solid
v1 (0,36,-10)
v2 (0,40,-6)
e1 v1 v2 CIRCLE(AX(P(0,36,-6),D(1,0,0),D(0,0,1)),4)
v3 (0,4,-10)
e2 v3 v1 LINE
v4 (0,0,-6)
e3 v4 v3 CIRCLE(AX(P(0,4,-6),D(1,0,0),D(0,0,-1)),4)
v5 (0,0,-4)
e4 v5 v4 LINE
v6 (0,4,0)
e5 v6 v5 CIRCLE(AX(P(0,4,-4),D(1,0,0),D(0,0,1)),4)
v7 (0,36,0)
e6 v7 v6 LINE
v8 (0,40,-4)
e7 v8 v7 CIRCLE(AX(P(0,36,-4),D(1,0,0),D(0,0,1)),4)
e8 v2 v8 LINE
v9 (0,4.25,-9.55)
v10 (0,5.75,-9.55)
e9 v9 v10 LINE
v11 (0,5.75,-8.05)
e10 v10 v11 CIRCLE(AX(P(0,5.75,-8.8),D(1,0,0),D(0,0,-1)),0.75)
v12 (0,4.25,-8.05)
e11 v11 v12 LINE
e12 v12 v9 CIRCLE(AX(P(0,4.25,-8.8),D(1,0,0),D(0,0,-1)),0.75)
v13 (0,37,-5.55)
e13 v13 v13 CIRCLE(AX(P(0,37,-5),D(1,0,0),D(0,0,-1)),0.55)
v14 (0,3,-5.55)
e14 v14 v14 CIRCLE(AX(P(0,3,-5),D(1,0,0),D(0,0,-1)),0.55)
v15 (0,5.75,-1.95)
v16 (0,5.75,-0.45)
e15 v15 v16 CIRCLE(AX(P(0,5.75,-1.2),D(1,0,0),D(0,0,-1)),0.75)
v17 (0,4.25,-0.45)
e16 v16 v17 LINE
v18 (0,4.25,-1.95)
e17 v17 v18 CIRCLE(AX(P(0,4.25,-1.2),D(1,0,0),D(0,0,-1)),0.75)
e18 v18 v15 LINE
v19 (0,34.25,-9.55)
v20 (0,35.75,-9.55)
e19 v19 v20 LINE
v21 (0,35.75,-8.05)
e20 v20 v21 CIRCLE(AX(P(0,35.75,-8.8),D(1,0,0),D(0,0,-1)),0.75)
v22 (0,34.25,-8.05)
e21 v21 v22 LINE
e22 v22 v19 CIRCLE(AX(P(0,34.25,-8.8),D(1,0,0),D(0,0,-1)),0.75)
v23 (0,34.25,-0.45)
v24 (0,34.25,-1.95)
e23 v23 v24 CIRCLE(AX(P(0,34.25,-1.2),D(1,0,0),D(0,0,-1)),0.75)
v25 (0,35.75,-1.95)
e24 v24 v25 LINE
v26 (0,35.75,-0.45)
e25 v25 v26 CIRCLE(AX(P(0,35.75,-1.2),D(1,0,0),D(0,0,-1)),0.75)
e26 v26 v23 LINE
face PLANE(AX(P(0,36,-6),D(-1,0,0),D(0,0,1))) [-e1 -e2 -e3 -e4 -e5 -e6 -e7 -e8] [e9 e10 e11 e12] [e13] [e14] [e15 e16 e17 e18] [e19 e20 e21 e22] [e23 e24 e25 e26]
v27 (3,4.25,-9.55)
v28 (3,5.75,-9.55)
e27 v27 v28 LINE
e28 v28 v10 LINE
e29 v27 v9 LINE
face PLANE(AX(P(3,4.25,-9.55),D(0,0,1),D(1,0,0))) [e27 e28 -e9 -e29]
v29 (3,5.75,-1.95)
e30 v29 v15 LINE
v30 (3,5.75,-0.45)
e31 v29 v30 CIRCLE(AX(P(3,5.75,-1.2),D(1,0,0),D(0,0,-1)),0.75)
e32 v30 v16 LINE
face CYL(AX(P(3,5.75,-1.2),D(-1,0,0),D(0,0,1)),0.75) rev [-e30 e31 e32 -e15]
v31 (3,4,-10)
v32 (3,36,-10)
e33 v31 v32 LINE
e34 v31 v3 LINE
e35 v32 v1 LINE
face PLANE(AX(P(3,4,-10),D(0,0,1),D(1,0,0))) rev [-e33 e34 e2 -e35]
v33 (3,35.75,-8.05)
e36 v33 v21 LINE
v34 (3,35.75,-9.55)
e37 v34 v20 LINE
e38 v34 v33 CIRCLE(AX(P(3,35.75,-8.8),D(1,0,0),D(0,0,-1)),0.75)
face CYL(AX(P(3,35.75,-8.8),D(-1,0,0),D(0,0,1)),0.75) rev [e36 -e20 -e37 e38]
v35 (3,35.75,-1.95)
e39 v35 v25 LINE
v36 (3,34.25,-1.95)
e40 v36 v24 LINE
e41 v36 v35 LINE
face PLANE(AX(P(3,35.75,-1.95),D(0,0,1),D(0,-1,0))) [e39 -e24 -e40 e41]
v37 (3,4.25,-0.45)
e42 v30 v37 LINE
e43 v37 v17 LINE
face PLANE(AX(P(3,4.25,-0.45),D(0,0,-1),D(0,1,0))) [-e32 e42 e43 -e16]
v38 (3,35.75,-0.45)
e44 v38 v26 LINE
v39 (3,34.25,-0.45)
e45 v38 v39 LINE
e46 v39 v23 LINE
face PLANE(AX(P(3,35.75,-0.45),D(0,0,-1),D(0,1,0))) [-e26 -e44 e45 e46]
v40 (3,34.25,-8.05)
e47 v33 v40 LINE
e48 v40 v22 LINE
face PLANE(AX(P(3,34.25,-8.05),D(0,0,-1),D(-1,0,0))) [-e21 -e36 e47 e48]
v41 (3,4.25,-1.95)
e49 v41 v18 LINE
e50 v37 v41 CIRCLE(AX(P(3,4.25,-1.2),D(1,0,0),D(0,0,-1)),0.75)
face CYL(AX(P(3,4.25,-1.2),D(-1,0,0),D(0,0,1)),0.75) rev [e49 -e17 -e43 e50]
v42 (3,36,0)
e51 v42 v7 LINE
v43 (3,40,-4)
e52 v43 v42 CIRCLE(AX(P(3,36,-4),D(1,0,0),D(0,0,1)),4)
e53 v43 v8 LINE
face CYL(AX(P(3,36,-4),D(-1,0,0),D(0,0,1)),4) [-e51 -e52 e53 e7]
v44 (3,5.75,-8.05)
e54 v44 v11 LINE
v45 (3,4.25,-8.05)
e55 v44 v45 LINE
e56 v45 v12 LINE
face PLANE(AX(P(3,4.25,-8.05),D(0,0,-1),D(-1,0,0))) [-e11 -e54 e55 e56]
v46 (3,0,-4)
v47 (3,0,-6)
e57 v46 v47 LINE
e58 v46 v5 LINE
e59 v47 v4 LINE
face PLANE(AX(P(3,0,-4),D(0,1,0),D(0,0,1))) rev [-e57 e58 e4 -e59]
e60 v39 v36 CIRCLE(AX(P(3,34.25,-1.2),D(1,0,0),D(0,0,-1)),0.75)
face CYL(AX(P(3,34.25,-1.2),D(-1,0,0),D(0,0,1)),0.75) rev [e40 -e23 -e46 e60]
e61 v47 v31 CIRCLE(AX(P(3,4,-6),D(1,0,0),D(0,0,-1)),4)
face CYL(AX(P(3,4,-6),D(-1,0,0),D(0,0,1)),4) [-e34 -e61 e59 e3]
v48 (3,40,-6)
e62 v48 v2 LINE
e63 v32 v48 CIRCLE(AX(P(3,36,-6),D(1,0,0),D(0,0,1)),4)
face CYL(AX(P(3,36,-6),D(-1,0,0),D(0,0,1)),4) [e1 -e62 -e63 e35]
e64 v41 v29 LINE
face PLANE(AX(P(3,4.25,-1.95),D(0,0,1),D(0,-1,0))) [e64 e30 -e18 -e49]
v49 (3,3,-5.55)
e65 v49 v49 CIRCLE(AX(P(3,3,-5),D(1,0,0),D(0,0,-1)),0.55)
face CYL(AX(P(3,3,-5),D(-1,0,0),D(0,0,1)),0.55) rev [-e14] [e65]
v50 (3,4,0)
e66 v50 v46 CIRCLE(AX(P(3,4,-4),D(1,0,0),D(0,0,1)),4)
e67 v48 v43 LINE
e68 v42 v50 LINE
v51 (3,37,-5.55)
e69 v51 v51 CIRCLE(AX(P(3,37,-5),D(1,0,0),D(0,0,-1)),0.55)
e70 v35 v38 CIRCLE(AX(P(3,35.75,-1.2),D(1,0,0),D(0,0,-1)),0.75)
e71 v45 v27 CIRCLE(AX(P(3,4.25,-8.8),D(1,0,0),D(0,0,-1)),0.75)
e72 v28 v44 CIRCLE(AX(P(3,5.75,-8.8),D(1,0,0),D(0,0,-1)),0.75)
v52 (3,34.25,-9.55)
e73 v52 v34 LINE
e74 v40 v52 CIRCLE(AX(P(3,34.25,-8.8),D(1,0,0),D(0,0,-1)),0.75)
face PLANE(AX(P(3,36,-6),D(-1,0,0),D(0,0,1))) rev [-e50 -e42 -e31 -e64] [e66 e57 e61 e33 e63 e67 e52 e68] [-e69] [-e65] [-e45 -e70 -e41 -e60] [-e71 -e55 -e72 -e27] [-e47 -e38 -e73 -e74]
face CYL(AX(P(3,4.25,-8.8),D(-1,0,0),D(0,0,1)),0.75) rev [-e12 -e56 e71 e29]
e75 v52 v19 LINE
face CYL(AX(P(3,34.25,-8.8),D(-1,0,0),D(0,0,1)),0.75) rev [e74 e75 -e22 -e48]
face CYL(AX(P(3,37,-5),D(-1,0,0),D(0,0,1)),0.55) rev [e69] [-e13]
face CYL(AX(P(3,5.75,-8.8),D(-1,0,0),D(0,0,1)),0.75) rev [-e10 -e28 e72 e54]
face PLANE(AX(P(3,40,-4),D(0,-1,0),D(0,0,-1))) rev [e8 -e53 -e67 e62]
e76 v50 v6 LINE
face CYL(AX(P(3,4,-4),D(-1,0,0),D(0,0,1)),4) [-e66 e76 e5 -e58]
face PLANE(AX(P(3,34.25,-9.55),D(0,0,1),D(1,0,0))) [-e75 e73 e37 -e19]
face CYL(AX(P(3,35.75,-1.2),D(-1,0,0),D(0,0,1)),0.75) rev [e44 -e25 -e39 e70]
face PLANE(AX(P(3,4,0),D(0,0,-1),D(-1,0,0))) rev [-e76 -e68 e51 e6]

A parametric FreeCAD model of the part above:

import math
import FreeCAD as App
import Part
import Sketcher
Q = App.Units.Quantity

doc = App.newDocument("Part")
body = doc.addObject("PartDesign::Body", "Body")

# Sketch on YZ plane
sketch1 = doc.addObject("Sketcher::SketchObject", "Sketch")
body.addObject(sketch1)
sketch1.AttachmentSupport = (doc.YZ_Plane, [""])
sketch1.MapMode = "FlatFace"
sketch1.addGeometry([
    Part.LineSegment(App.Vector(0, -4, 0), App.Vector(0, -6, 0)),  # 0
    Part.ArcOfCircle(Part.Circle(App.Vector(4, -6, 0), App.Vector(0, 0, 1), 4), math.radians(180), math.radians(270)),  # 1
    Part.LineSegment(App.Vector(4, -10, 0), App.Vector(36, -10, 0)),  # 2
    Part.ArcOfCircle(Part.Circle(App.Vector(36, -6, 0), App.Vector(0, 0, 1), 4), math.radians(-90), math.radians(0)),  # 3
    Part.LineSegment(App.Vector(40, -6, 0), App.Vector(40, -4, 0)),  # 4
    Part.ArcOfCircle(Part.Circle(App.Vector(36, -4, 0), App.Vector(0, 0, 1), 4), math.radians(0), math.radians(90)),  # 5
    Part.LineSegment(App.Vector(36, 0, 0), App.Vector(4, 0, 0)),  # 6
    Part.ArcOfCircle(Part.Circle(App.Vector(4, -4, 0), App.Vector(0, 0, 1), 4), math.radians(90), math.radians(180)),  # 7
    Part.ArcOfCircle(Part.Circle(App.Vector(4.2, -1.2, 0), App.Vector(0, 0, 1), 0.8), math.radians(90), math.radians(270)),  # 8
    Part.LineSegment(App.Vector(4.2, -0.5, 0), App.Vector(5.8, -0.5, 0)),  # 9
    Part.ArcOfCircle(Part.Circle(App.Vector(5.8, -1.2, 0), App.Vector(0, 0, 1), 0.8), math.radians(-90), math.radians(90)),  # 10
    Part.LineSegment(App.Vector(5.8, -1.9, 0), App.Vector(4.2, -1.9, 0)),  # 11
    Part.Circle(App.Vector(3, -5, 0), App.Vector(0, 0, 1), 0.6),  # 12
    Part.ArcOfCircle(Part.Circle(App.Vector(4.2, -8.8, 0), App.Vector(0, 0, 1), 0.8), math.radians(90), math.radians(270)),  # 13
    Part.LineSegment(App.Vector(4.2, -8.1, 0), App.Vector(5.8, -8.1, 0)),  # 14
    Part.ArcOfCircle(Part.Circle(App.Vector(5.8, -8.8, 0), App.Vector(0, 0, 1), 0.8), math.radians(-90), math.radians(90)),  # 15
    Part.LineSegment(App.Vector(5.8, -9.6, 0), App.Vector(4.2, -9.6, 0)),  # 16
    Part.ArcOfCircle(Part.Circle(App.Vector(35.8, -1.2, 0), App.Vector(0, 0, 1), 0.8), math.radians(-90), math.radians(90)),  # 17
    Part.LineSegment(App.Vector(35.8, -1.9, 0), App.Vector(34.2, -1.9, 0)),  # 18
    Part.ArcOfCircle(Part.Circle(App.Vector(34.2, -1.2, 0), App.Vector(0, 0, 1), 0.8), math.radians(90), math.radians(270)),  # 19
    Part.LineSegment(App.Vector(34.2, -0.5, 0), App.Vector(35.8, -0.5, 0)),  # 20
    Part.Circle(App.Vector(37, -5, 0), App.Vector(0, 0, 1), 0.6),  # 21
    Part.ArcOfCircle(Part.Circle(App.Vector(34.2, -8.8, 0), App.Vector(0, 0, 1), 0.8), math.radians(90), math.radians(270)),  # 22
    Part.LineSegment(App.Vector(34.2, -8.1, 0), App.Vector(35.8, -8.1, 0)),  # 23
    Part.ArcOfCircle(Part.Circle(App.Vector(35.8, -8.8, 0), App.Vector(0, 0, 1), 0.8), math.radians(-90), math.radians(90)),  # 24
    Part.LineSegment(App.Vector(35.8, -9.6, 0), App.Vector(34.2, -9.6, 0)),  # 25
], False)
sketch1.addConstraint([
    Sketcher.Constraint("Tangent", 0, 2, 1, 1),
    Sketcher.Constraint("Tangent", 1, 2, 2, 1),
    Sketcher.Constraint("Tangent", 2, 2, 3, 1),
    Sketcher.Constraint("Tangent", 3, 2, 4, 1),
    Sketcher.Constraint("Tangent", 4, 2, 5, 1),
    Sketcher.Constraint("Tangent", 5, 2, 6, 1),
    Sketcher.Constraint("Tangent", 6, 2, 7, 1),
    Sketcher.Constraint("Tangent", 7, 2, 0, 1),
    Sketcher.Constraint("Tangent", 8, 1, 9, 1),
    Sketcher.Constraint("Tangent", 9, 2, 10, 2),
    Sketcher.Constraint("Tangent", 10, 1, 11, 1),
    Sketcher.Constraint("Tangent", 11, 2, 8, 2),
    Sketcher.Constraint("Tangent", 13, 1, 14, 1),
    Sketcher.Constraint("Tangent", 14, 2, 15, 2),
    Sketcher.Constraint("Tangent", 15, 1, 16, 1),
    Sketcher.Constraint("Tangent", 16, 2, 13, 2),
    Sketcher.Constraint("Tangent", 17, 1, 18, 1),
    Sketcher.Constraint("Tangent", 18, 2, 19, 2),
    Sketcher.Constraint("Tangent", 19, 1, 20, 1),
    Sketcher.Constraint("Tangent", 20, 2, 17, 2),
    Sketcher.Constraint("Tangent", 22, 1, 23, 1),
    Sketcher.Constraint("Tangent", 23, 2, 24, 2),
    Sketcher.Constraint("Tangent", 24, 1, 25, 1),
    Sketcher.Constraint("Tangent", 25, 2, 22, 2),
    Sketcher.Constraint("Vertical", 0),
    Sketcher.Constraint("Horizontal", 2),
    Sketcher.Constraint("Vertical", 4),
    Sketcher.Constraint("Horizontal", 6),
    Sketcher.Constraint("Horizontal", 9),
    Sketcher.Constraint("Horizontal", 11),
    Sketcher.Constraint("Horizontal", 14),
    Sketcher.Constraint("Horizontal", 16),
    Sketcher.Constraint("Horizontal", 18),
    Sketcher.Constraint("Horizontal", 20),
    Sketcher.Constraint("Horizontal", 23),
    Sketcher.Constraint("Horizontal", 25),
    Sketcher.Constraint("Equal", 1, 3),
    Sketcher.Constraint("Equal", 3, 5),
    Sketcher.Constraint("Equal", 5, 7),
    Sketcher.Constraint("Equal", 10, 13),
    Sketcher.Constraint("Equal", 15, 17),
    Sketcher.Constraint("Equal", 12, 21),
    Sketcher.Constraint("Equal", 19, 22),
    Sketcher.Constraint("PointOnObject", 0, 2, -2),
    Sketcher.Constraint("PointOnObject", 5, 2, -1),
    Sketcher.Constraint("Horizontal", 10, 3, 17, 3),
    Sketcher.Constraint("Horizontal", 12, 3, 21, 3),
    Sketcher.Constraint("Horizontal", 15, 3, 22, 3),
    Sketcher.Constraint("Vertical", 8, 3, 13, 3),
    Sketcher.Constraint("Vertical", 10, 3, 15, 3),
    Sketcher.Constraint("Vertical", 19, 3, 22, 3),
    Sketcher.Constraint("Vertical", 17, 3, 24, 3),
    Sketcher.Constraint("Equal", 16, 18),
    Sketcher.Constraint("Radius", 1, Q("4 mm")),
    Sketcher.Constraint("Diameter", 12, Q("1.1 mm")),
    Sketcher.Constraint("DistanceX", 2, 1, 2, 2, Q("32 mm")),
    Sketcher.Constraint("DistanceY", 0, 2, 0, 1, Q("2 mm")),
    Sketcher.Constraint("Radius", 8, Q("0.75 mm")),
    Sketcher.Constraint("DistanceX", 9, 1, 9, 2, Q("1.5 mm")),
    Sketcher.Constraint("DistanceX", -1, 1, 12, 3, Q("3 mm")),
    Sketcher.Constraint("DistanceY", 12, 3, -1, 1, Q("5 mm")),
    Sketcher.Constraint("DistanceX", -1, 1, 21, 3, Q("37 mm")),
    Sketcher.Constraint("DistanceX", 10, 3, 17, 3, Q("30 mm")),
    Sketcher.Constraint("DistanceY", 8, 3, -1, 1, Q("1.2 mm")),
    Sketcher.Constraint("DistanceY", 13, 3, -1, 1, Q("8.8 mm")),
    Sketcher.Constraint("DistanceX", -1, 1, 8, 3, Q("4.25 mm")),
])
pad1 = doc.addObject("PartDesign::Pad", "Pad")
body.addObject(pad1)
pad1.Profile = sketch1
pad1.Length = 3

doc.recompute()
